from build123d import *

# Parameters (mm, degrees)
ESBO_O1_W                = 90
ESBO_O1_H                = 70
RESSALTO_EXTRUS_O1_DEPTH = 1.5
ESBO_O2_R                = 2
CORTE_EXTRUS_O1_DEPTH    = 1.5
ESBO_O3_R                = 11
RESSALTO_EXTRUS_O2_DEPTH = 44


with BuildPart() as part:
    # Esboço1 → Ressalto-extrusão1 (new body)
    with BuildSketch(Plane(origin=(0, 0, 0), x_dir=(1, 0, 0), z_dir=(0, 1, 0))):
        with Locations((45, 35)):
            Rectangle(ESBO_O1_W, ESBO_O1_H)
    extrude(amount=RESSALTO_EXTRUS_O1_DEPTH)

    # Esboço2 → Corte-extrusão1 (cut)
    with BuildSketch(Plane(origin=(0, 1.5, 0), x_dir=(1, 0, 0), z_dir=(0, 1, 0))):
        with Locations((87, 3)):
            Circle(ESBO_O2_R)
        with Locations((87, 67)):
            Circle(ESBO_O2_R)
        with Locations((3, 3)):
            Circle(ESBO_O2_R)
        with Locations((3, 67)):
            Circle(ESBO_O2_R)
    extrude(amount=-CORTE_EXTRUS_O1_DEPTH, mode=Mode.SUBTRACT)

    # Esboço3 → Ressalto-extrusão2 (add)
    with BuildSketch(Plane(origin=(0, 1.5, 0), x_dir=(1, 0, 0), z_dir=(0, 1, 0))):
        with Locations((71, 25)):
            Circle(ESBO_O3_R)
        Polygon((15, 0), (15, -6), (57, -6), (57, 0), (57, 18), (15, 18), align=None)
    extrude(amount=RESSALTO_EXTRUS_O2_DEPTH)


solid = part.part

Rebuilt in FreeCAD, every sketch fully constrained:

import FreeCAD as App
import Part
import Sketcher
Q = App.Units.Quantity


def add_polygon(sketch, points):
    """Adds a closed chain of lines whose ends are joined by coincident constraints."""
    first, n = sketch.GeometryCount, len(points)
    for a, b in zip(points, points[1:] + points[:1]):
        sketch.addGeometry(Part.LineSegment(App.Vector(*a, 0), App.Vector(*b, 0)), False)
    for i in range(n):
        sketch.addConstraint(Sketcher.Constraint("Coincident", first + i, 2, first + (i + 1) % n, 1))

doc = App.newDocument("Part")
body = doc.addObject("PartDesign::Body", "Body")

sketch1 = doc.addObject("Sketcher::SketchObject", "Sketch")
body.addObject(sketch1)
sketch1.AttachmentSupport = (doc.XZ_Plane, [""])
sketch1.MapMode = "FlatFace"
add_polygon(sketch1, [(0, -70), (0, 0), (90, 0), (90, -70)])
sketch1.addConstraint([
    Sketcher.Constraint("Vertical", 0),
    Sketcher.Constraint("Horizontal", 1),
    Sketcher.Constraint("Vertical", 2),
    Sketcher.Constraint("Horizontal", 3),
    Sketcher.Constraint("Coincident", 0, 2, -1, 1),
    Sketcher.Constraint("DistanceX", 1, 1, 1, 2, Q("90 mm")),
    Sketcher.Constraint("DistanceY", 0, 1, 0, 2, Q("70 mm")),
])
pad1 = doc.addObject("PartDesign::Pad", "Pad")
body.addObject(pad1)
pad1.Profile = sketch1
pad1.Length = 1.5
pad1.Reversed = True

sketch2 = doc.addObject("Sketcher::SketchObject", "Sketch001")
body.addObject(sketch2)
sketch2.AttachmentSupport = (doc.XZ_Plane, [""])
sketch2.MapMode = "FlatFace"
sketch2.AttachmentOffset = App.Placement(App.Vector(0, 0, -1.5), App.Rotation())
sketch2.addGeometry([
    Part.Circle(App.Vector(87, -3, 0), App.Vector(0, 0, 1), 2),
    Part.Circle(App.Vector(87, -67, 0), App.Vector(0, 0, 1), 2),
    Part.Circle(App.Vector(3, -3, 0), App.Vector(0, 0, 1), 2),
    Part.Circle(App.Vector(3, -67, 0), App.Vector(0, 0, 1), 2),
], False)
sketch2.addConstraint([
    Sketcher.Constraint("Equal", 0, 1),
    Sketcher.Constraint("Equal", 1, 2),
    Sketcher.Constraint("Equal", 2, 3),
    Sketcher.Constraint("Horizontal", 0, 3, 2, 3),
    Sketcher.Constraint("Horizontal", 1, 3, 3, 3),
    Sketcher.Constraint("Vertical", 0, 3, 1, 3),
    Sketcher.Constraint("Vertical", 2, 3, 3, 3),
    Sketcher.Constraint("Diameter", 0, Q("4 mm")),
    Sketcher.Constraint("DistanceX", -1, 1, 0, 3, Q("87 mm")),
    Sketcher.Constraint("DistanceY", 0, 3, -1, 1, Q("3 mm")),
    Sketcher.Constraint("DistanceY", 1, 3, -1, 1, Q("67 mm")),
    Sketcher.Constraint("DistanceX", -1, 1, 2, 3, Q("3 mm")),
])
pocket1 = doc.addObject("PartDesign::Pocket", "Pocket")
body.addObject(pocket1)
pocket1.Profile = sketch2
pocket1.Length = 1.5
pocket1.Reversed = True

sketch3 = doc.addObject("Sketcher::SketchObject", "Sketch002")
body.addObject(sketch3)
sketch3.AttachmentSupport = (doc.XZ_Plane, [""])
sketch3.MapMode = "FlatFace"
sketch3.AttachmentOffset = App.Placement(App.Vector(0, 0, -1.5), App.Rotation())
sketch3.addGeometry(Part.Circle(App.Vector(71, -25, 0), App.Vector(0, 0, 1), 11), False)
add_polygon(sketch3, [(15, 6), (57, 6), (57, -18), (15, -18)])
sketch3.addConstraint([
    Sketcher.Constraint("Horizontal", 1),
    Sketcher.Constraint("Vertical", 2),
    Sketcher.Constraint("Horizontal", 3),
    Sketcher.Constraint("Vertical", 4),
    Sketcher.Constraint("Diameter", 0, Q("22 mm")),
    Sketcher.Constraint("DistanceX", 1, 1, 1, 2, Q("42 mm")),
    Sketcher.Constraint("DistanceY", 2, 2, 2, 1, Q("24 mm")),
    Sketcher.Constraint("DistanceX", -1, 1, 0, 3, Q("71 mm")),
    Sketcher.Constraint("DistanceY", 0, 3, -1, 1, Q("25 mm")),
    Sketcher.Constraint("DistanceX", -1, 1, 1, 2, Q("57 mm")),
    Sketcher.Constraint("DistanceY", -1, 1, 1, 2, Q("6 mm")),
])
pad2 = doc.addObject("PartDesign::Pad", "Pad001")
body.addObject(pad2)
pad2.Profile = sketch3
pad2.Length = 44
pad2.Reversed = True

doc.recompute()
